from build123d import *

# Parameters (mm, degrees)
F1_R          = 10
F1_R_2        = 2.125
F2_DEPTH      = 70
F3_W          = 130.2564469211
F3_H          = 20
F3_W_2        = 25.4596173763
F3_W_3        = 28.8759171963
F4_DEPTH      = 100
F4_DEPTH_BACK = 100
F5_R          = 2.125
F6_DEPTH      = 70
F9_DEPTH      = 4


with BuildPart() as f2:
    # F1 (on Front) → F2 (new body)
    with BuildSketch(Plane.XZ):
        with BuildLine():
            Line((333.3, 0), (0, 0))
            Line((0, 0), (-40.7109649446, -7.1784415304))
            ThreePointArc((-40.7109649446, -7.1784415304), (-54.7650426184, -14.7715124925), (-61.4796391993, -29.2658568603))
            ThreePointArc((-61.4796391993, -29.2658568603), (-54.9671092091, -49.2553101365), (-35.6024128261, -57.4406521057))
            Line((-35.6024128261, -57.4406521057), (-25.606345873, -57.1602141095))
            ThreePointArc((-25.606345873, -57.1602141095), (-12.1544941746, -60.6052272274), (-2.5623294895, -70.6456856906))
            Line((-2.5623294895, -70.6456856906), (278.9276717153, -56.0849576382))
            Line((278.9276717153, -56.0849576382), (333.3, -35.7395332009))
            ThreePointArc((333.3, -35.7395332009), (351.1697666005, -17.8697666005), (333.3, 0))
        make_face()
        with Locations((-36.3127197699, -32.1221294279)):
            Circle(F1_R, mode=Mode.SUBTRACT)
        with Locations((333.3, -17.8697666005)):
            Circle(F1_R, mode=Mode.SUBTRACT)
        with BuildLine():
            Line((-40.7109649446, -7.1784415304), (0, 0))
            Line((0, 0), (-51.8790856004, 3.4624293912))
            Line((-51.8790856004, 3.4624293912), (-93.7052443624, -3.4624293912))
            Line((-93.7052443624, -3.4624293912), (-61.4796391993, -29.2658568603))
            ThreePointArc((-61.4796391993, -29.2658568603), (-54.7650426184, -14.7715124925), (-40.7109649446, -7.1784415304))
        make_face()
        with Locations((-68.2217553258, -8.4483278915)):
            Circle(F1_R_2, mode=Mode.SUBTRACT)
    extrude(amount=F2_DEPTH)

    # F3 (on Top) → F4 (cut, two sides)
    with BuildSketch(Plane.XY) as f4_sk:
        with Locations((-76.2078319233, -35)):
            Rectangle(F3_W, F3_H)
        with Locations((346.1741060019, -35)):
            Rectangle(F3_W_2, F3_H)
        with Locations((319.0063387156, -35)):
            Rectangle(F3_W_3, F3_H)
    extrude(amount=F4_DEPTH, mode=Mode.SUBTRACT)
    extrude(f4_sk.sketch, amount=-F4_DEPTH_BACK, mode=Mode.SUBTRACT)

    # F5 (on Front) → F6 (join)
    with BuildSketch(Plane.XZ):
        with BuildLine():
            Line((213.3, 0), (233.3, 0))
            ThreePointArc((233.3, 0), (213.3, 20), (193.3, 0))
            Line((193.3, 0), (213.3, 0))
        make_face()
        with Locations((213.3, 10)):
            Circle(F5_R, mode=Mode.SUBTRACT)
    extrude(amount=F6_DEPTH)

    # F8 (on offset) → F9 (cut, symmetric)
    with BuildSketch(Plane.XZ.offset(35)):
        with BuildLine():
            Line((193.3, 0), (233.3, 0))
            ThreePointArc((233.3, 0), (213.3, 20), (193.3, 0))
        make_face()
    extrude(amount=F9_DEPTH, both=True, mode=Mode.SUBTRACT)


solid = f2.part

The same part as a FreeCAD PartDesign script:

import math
import FreeCAD as App
import Part
import Sketcher


def add_polygon(sketch, points):
    """Adds a closed chain of lines whose ends are joined by coincident constraints."""
    first, n = sketch.GeometryCount, len(points)
    for a, b in zip(points, points[1:] + points[:1]):
        sketch.addGeometry(Part.LineSegment(App.Vector(*a, 0), App.Vector(*b, 0)), False)
    for i in range(n):
        sketch.addConstraint(Sketcher.Constraint("Coincident", first + i, 2, first + (i + 1) % n, 1))

doc = App.newDocument("Part")
body = doc.addObject("PartDesign::Body", "Body")

# Sketch on XZ plane
sketch1 = body.newObject("Sketcher::SketchObject", "Sketch")
sketch1.AttachmentSupport = (doc.getObject("XZ_Plane"), [""])
sketch1.MapMode = "FlatFace"
sketch1.addGeometry(Part.LineSegment(App.Vector(333.3, 0, 0), App.Vector(0, 0, 0)), False)
sketch1.addGeometry(Part.LineSegment(App.Vector(0, 0, 0), App.Vector(-51.9, 3.5, 0)), False)
sketch1.addGeometry(Part.LineSegment(App.Vector(-51.9, 3.5, 0), App.Vector(-93.7, -3.5, 0)), False)
sketch1.addGeometry(Part.LineSegment(App.Vector(-93.7, -3.5, 0), App.Vector(-61.5, -29.3, 0)), False)
sketch1.addGeometry(Part.ArcOfCircle(Part.Circle(App.Vector(-36.3, -32.1, 0), App.Vector(0, 0, 1), 25.3), math.radians(174), math.radians(272)), False)
sketch1.addGeometry(Part.LineSegment(App.Vector(-35.6, -57.4, 0), App.Vector(-25.6, -57.2, 0)), False)
sketch1.addGeometry(Part.ArcOfCircle(Part.Circle(App.Vector(-24.9, -82.4, 0), App.Vector(0, 0, 1), 25.2), math.radians(28), math.radians(92)), False)
sketch1.addGeometry(Part.LineSegment(App.Vector(-2.6, -70.6, 0), App.Vector(278.9, -56.1, 0)), False)
sketch1.addGeometry(Part.LineSegment(App.Vector(278.9, -56.1, 0), App.Vector(333.3, -35.7, 0)), False)
sketch1.addGeometry(Part.ArcOfCircle(Part.Circle(App.Vector(333.3, -17.9, 0), App.Vector(0, 0, 1), 17.9), math.radians(-90), math.radians(90)), False)
sketch1.addGeometry(Part.Circle(App.Vector(-36.3, -32.1, 0), App.Vector(0, 0, 1), 10), False)
sketch1.addGeometry(Part.Circle(App.Vector(-68.2, -8.4, 0), App.Vector(0, 0, 1), 2.1), False)
sketch1.addGeometry(Part.Circle(App.Vector(333.3, -17.9, 0), App.Vector(0, 0, 1), 10), False)
sketch1.addConstraint(Sketcher.Constraint("Coincident", 0, 2, 1, 1))
sketch1.addConstraint(Sketcher.Constraint("Coincident", 1, 2, 2, 1))
sketch1.addConstraint(Sketcher.Constraint("Coincident", 2, 2, 3, 1))
sketch1.addConstraint(Sketcher.Constraint("Coincident", 3, 2, 4, 1))
sketch1.addConstraint(Sketcher.Constraint("Tangent", 4, 2, 5, 1))
sketch1.addConstraint(Sketcher.Constraint("Tangent", 5, 2, 6, 2))
sketch1.addConstraint(Sketcher.Constraint("Coincident", 6, 1, 7, 1))
sketch1.addConstraint(Sketcher.Constraint("Coincident", 7, 2, 8, 1))
sketch1.addConstraint(Sketcher.Constraint("Coincident", 8, 2, 9, 1))
sketch1.addConstraint(Sketcher.Constraint("Tangent", 9, 2, 0, 1))
sketch1.addConstraint(Sketcher.Constraint("Horizontal", 0))
sketch1.addConstraint(Sketcher.Constraint("Coincident", 0, 2, -1, 1))
sketch1.addConstraint(Sketcher.Constraint("Coincident", 10, 3, 4, 3))
sketch1.addConstraint(Sketcher.Constraint("Coincident", 12, 3, 9, 3))
sketch1.addConstraint(Sketcher.Constraint("Equal", 10, 12))
sketch1.addConstraint(Sketcher.Constraint("Vertical", 12, 3, 8, 2))
sketch1.addConstraint(Sketcher.Constraint("Diameter", 10, 20.0))
sketch1.addConstraint(Sketcher.Constraint("Diameter", 11, 4.25))
sketch1.addConstraint(Sketcher.Constraint("Distance", 5, 10.0))
sketch1.addConstraint(Sketcher.Constraint("DistanceX", 0, 2, 0, 1, 333.3))
sketch1.addConstraint(Sketcher.Constraint("DistanceX", 6, 1, 7, 2, 281.490001))
sketch1.addConstraint(Sketcher.Constraint("Radius", 4, 25.328484))
sketch1.addConstraint(Sketcher.Constraint("Radius", 6, 25.232337))
sketch1.addConstraint(Sketcher.Constraint("Radius", 9, 17.869767))
sketch1.addConstraint(Sketcher.Constraint("Distance", 1, 51.994499))
sketch1.addConstraint(Sketcher.Constraint("DistanceY", 4, 3, 11, 3, 23.673802))
sketch1.addConstraint(Sketcher.Constraint("DistanceY", 6, 3, 11, 3, 73.934299))
sketch1.addConstraint(Sketcher.Constraint("DistanceY", 11, 3, 2, 2, 4.985898))
sketch1.addConstraint(Sketcher.Constraint("DistanceX", 4, 3, -1, 1, 36.31272))
sketch1.addConstraint(Sketcher.Constraint("DistanceY", 4, 3, -1, 1, 32.122129))
sketch1.addConstraint(Sketcher.Constraint("DistanceY", -1, 1, 1, 2, 3.462429))
sketch1.addConstraint(Sketcher.Constraint("DistanceX", 3, 2, -1, 1, 61.479639))
sketch1.addConstraint(Sketcher.Constraint("DistanceX", 6, 1, -1, 1, 2.562329))
sketch1.addConstraint(Sketcher.Constraint("DistanceX", 11, 3, 6, 3, 43.32302))
sketch1.addConstraint(Sketcher.Constraint("DistanceX", 2, 2, 11, 3, 25.483489))
sketch1.addConstraint(Sketcher.Constraint("DistanceY", 7, 2, 12, 3, 38.215191))
pad1 = body.newObject("PartDesign::Pad", "Pad")
pad1.Profile = sketch1
pad1.Length = 70

# Sketch on XY plane
sketch2 = body.newObject("Sketcher::SketchObject", "Sketch001")
sketch2.AttachmentSupport = (doc.getObject("XY_Plane"), [""])
sketch2.MapMode = "FlatFace"
add_polygon(sketch2, [(-141, -25), (-141, -45), (-11, -45), (-11, -25)])  # lines 0-3
add_polygon(sketch2, [(359, -45), (359, -25), (305, -25), (305, -45)])  # lines 4-7
sketch2.addConstraint(Sketcher.Constraint("Vertical", 0))
sketch2.addConstraint(Sketcher.Constraint("Horizontal", 1))
sketch2.addConstraint(Sketcher.Constraint("Vertical", 2))
sketch2.addConstraint(Sketcher.Constraint("Horizontal", 3))
sketch2.addConstraint(Sketcher.Constraint("Vertical", 4))
sketch2.addConstraint(Sketcher.Constraint("Horizontal", 5))
sketch2.addConstraint(Sketcher.Constraint("Vertical", 6))
sketch2.addConstraint(Sketcher.Constraint("Horizontal", 7))
sketch2.addConstraint(Sketcher.Constraint("Horizontal", 3, 2, 4, 2))
sketch2.addConstraint(Sketcher.Constraint("Horizontal", 1, 2, 6, 2))
sketch2.addConstraint(Sketcher.Constraint("DistanceY", 0, 2, 0, 1, 20.0))
sketch2.addConstraint(Sketcher.Constraint("DistanceY", 0, 2, -1, 1, 45.0))
sketch2.addConstraint(Sketcher.Constraint("DistanceX", 1, 1, 1, 2, 130.256447))
sketch2.addConstraint(Sketcher.Constraint("DistanceX", 5, 2, 5, 1, 54.335535))
sketch2.addConstraint(Sketcher.Constraint("DistanceX", 1, 2, -1, 1, 11.079608))
sketch2.addConstraint(Sketcher.Constraint("DistanceX", -1, 1, 5, 2, 304.56838))
pocket1 = body.newObject("PartDesign::Pocket", "Pocket")
pocket1.Profile = sketch2
pocket1.Type = "ThroughAll"
pocket1.Midplane = True

# Sketch on XZ plane
sketch3 = body.newObject("Sketcher::SketchObject", "Sketch002")
sketch3.AttachmentSupport = (doc.getObject("XZ_Plane"), [""])
sketch3.MapMode = "FlatFace"
sketch3.addGeometry(Part.ArcOfCircle(Part.Circle(App.Vector(213.3, 0, 0), App.Vector(0, 0, 1), 20), math.radians(0), math.radians(180)), False)
sketch3.addGeometry(Part.LineSegment(App.Vector(193.3, 0, 0), App.Vector(233.3, 0, 0)), False)
sketch3.addGeometry(Part.Circle(App.Vector(213.3, 10, 0), App.Vector(0, 0, 1), 2.1), False)
sketch3.addConstraint(Sketcher.Constraint("Coincident", 0, 1, 1, 2))
sketch3.addConstraint(Sketcher.Constraint("Coincident", 1, 1, 0, 2))
sketch3.addConstraint(Sketcher.Constraint("Horizontal", 1))
sketch3.addConstraint(Sketcher.Constraint("PointOnObject", 0, 3, -1))
sketch3.addConstraint(Sketcher.Constraint("PointOnObject", 0, 1, -1))
sketch3.addConstraint(Sketcher.Constraint("Vertical", 0, 3, 2, 3))
sketch3.addConstraint(Sketcher.Constraint("Radius", 0, 20.0))
sketch3.addConstraint(Sketcher.Constraint("Diameter", 2, 4.25))
sketch3.addConstraint(Sketcher.Constraint("DistanceY", -1, 1, 2, 3, 10.0))
sketch3.addConstraint(Sketcher.Constraint("DistanceX", -1, 1, 0, 3, 213.3))
pad2 = body.newObject("PartDesign::Pad", "Pad001")
pad2.Profile = sketch3
pad2.Length = 70

# Sketch on XZ plane
sketch4 = body.newObject("Sketcher::SketchObject", "Sketch003")
sketch4.AttachmentSupport = (doc.getObject("XZ_Plane"), [""])
sketch4.MapMode = "FlatFace"
sketch4.AttachmentOffset = App.Placement(App.Vector(0, 0, 35), App.Rotation())
sketch4.addGeometry(Part.LineSegment(App.Vector(193, 0, 0), App.Vector(233, 0, 0)), False)
sketch4.addGeometry(Part.ArcOfCircle(Part.Circle(App.Vector(213, 0, 0), App.Vector(0, 0, 1), 20), math.radians(0), math.radians(180)), False)
sketch4.addConstraint(Sketcher.Constraint("Coincident", 0, 1, 1, 2))
sketch4.addConstraint(Sketcher.Constraint("Coincident", 1, 1, 0, 2))
sketch4.addConstraint(Sketcher.Constraint("Horizontal", 0))
sketch4.addConstraint(Sketcher.Constraint("PointOnObject", 1, 3, -1))
sketch4.addConstraint(Sketcher.Constraint("PointOnObject", 0, 1, -1))
sketch4.addConstraint(Sketcher.Constraint("Radius", 1, 20.0))
sketch4.addConstraint(Sketcher.Constraint("DistanceX", -1, 1, 1, 3, 213.3))
pocket2 = body.newObject("PartDesign::Pocket", "Pocket001")
pocket2.Profile = sketch4
pocket2.Length = 8
pocket2.Midplane = True

doc.recompute()
